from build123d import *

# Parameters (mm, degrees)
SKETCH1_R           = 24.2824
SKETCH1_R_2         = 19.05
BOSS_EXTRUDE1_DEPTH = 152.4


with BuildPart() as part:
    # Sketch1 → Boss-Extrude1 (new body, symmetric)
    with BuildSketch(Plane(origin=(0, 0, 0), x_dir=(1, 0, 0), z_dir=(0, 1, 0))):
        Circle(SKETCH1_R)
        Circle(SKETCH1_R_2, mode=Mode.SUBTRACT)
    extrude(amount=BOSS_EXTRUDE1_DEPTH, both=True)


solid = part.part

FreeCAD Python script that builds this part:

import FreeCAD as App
import Part
import Sketcher

V = App.Vector
Q = App.Units.Quantity

doc = App.newDocument("Part")
params = doc.addObject("Spreadsheet::Sheet", "Params")
for row, (alias, value) in enumerate([
    ("sketch1_diameter", "1.5 in"),
    ("sketch1_diameter2", "1.912 in"),
    ("pad1_length", "12 in"),
], start=1):
    params.set(f"A{row}", alias)
    params.set(f"B{row}", "=" + value)
    params.setAlias(f"B{row}", alias)

body = doc.addObject("PartDesign::Body", "Body")

sketch1 = body.newObject("Sketcher::SketchObject", "Sketch")
sketch1.AttachmentSupport = (doc.getObject("XZ_Plane"), [""])
sketch1.MapMode = "FlatFace"
sketch1.addGeometry([
    Part.Circle(V(0, 0, 0), V(0, 0, 1), 24),
    Part.Circle(V(0, 0, 0), V(0, 0, 1), 19),
], False)
sketch1.addConstraint([
    Sketcher.Constraint("Coincident", 0, 3, -1, 1),
    Sketcher.Constraint("Coincident", 1, 3, -1, 1),
    Sketcher.Constraint("Diameter", 1, Q("1.5 in")),
    Sketcher.Constraint("Diameter", 0, Q("1.912 in")),
])
sketch1.setExpression("Constraints[2]", "Params.sketch1_diameter")
sketch1.setExpression("Constraints[3]", "Params.sketch1_diameter2")
pad1 = body.newObject("PartDesign::Pad", "Pad")
pad1.Profile = sketch1
pad1.setExpression("Length", "Params.pad1_length")
pad1.Midplane = True

doc.recompute()
